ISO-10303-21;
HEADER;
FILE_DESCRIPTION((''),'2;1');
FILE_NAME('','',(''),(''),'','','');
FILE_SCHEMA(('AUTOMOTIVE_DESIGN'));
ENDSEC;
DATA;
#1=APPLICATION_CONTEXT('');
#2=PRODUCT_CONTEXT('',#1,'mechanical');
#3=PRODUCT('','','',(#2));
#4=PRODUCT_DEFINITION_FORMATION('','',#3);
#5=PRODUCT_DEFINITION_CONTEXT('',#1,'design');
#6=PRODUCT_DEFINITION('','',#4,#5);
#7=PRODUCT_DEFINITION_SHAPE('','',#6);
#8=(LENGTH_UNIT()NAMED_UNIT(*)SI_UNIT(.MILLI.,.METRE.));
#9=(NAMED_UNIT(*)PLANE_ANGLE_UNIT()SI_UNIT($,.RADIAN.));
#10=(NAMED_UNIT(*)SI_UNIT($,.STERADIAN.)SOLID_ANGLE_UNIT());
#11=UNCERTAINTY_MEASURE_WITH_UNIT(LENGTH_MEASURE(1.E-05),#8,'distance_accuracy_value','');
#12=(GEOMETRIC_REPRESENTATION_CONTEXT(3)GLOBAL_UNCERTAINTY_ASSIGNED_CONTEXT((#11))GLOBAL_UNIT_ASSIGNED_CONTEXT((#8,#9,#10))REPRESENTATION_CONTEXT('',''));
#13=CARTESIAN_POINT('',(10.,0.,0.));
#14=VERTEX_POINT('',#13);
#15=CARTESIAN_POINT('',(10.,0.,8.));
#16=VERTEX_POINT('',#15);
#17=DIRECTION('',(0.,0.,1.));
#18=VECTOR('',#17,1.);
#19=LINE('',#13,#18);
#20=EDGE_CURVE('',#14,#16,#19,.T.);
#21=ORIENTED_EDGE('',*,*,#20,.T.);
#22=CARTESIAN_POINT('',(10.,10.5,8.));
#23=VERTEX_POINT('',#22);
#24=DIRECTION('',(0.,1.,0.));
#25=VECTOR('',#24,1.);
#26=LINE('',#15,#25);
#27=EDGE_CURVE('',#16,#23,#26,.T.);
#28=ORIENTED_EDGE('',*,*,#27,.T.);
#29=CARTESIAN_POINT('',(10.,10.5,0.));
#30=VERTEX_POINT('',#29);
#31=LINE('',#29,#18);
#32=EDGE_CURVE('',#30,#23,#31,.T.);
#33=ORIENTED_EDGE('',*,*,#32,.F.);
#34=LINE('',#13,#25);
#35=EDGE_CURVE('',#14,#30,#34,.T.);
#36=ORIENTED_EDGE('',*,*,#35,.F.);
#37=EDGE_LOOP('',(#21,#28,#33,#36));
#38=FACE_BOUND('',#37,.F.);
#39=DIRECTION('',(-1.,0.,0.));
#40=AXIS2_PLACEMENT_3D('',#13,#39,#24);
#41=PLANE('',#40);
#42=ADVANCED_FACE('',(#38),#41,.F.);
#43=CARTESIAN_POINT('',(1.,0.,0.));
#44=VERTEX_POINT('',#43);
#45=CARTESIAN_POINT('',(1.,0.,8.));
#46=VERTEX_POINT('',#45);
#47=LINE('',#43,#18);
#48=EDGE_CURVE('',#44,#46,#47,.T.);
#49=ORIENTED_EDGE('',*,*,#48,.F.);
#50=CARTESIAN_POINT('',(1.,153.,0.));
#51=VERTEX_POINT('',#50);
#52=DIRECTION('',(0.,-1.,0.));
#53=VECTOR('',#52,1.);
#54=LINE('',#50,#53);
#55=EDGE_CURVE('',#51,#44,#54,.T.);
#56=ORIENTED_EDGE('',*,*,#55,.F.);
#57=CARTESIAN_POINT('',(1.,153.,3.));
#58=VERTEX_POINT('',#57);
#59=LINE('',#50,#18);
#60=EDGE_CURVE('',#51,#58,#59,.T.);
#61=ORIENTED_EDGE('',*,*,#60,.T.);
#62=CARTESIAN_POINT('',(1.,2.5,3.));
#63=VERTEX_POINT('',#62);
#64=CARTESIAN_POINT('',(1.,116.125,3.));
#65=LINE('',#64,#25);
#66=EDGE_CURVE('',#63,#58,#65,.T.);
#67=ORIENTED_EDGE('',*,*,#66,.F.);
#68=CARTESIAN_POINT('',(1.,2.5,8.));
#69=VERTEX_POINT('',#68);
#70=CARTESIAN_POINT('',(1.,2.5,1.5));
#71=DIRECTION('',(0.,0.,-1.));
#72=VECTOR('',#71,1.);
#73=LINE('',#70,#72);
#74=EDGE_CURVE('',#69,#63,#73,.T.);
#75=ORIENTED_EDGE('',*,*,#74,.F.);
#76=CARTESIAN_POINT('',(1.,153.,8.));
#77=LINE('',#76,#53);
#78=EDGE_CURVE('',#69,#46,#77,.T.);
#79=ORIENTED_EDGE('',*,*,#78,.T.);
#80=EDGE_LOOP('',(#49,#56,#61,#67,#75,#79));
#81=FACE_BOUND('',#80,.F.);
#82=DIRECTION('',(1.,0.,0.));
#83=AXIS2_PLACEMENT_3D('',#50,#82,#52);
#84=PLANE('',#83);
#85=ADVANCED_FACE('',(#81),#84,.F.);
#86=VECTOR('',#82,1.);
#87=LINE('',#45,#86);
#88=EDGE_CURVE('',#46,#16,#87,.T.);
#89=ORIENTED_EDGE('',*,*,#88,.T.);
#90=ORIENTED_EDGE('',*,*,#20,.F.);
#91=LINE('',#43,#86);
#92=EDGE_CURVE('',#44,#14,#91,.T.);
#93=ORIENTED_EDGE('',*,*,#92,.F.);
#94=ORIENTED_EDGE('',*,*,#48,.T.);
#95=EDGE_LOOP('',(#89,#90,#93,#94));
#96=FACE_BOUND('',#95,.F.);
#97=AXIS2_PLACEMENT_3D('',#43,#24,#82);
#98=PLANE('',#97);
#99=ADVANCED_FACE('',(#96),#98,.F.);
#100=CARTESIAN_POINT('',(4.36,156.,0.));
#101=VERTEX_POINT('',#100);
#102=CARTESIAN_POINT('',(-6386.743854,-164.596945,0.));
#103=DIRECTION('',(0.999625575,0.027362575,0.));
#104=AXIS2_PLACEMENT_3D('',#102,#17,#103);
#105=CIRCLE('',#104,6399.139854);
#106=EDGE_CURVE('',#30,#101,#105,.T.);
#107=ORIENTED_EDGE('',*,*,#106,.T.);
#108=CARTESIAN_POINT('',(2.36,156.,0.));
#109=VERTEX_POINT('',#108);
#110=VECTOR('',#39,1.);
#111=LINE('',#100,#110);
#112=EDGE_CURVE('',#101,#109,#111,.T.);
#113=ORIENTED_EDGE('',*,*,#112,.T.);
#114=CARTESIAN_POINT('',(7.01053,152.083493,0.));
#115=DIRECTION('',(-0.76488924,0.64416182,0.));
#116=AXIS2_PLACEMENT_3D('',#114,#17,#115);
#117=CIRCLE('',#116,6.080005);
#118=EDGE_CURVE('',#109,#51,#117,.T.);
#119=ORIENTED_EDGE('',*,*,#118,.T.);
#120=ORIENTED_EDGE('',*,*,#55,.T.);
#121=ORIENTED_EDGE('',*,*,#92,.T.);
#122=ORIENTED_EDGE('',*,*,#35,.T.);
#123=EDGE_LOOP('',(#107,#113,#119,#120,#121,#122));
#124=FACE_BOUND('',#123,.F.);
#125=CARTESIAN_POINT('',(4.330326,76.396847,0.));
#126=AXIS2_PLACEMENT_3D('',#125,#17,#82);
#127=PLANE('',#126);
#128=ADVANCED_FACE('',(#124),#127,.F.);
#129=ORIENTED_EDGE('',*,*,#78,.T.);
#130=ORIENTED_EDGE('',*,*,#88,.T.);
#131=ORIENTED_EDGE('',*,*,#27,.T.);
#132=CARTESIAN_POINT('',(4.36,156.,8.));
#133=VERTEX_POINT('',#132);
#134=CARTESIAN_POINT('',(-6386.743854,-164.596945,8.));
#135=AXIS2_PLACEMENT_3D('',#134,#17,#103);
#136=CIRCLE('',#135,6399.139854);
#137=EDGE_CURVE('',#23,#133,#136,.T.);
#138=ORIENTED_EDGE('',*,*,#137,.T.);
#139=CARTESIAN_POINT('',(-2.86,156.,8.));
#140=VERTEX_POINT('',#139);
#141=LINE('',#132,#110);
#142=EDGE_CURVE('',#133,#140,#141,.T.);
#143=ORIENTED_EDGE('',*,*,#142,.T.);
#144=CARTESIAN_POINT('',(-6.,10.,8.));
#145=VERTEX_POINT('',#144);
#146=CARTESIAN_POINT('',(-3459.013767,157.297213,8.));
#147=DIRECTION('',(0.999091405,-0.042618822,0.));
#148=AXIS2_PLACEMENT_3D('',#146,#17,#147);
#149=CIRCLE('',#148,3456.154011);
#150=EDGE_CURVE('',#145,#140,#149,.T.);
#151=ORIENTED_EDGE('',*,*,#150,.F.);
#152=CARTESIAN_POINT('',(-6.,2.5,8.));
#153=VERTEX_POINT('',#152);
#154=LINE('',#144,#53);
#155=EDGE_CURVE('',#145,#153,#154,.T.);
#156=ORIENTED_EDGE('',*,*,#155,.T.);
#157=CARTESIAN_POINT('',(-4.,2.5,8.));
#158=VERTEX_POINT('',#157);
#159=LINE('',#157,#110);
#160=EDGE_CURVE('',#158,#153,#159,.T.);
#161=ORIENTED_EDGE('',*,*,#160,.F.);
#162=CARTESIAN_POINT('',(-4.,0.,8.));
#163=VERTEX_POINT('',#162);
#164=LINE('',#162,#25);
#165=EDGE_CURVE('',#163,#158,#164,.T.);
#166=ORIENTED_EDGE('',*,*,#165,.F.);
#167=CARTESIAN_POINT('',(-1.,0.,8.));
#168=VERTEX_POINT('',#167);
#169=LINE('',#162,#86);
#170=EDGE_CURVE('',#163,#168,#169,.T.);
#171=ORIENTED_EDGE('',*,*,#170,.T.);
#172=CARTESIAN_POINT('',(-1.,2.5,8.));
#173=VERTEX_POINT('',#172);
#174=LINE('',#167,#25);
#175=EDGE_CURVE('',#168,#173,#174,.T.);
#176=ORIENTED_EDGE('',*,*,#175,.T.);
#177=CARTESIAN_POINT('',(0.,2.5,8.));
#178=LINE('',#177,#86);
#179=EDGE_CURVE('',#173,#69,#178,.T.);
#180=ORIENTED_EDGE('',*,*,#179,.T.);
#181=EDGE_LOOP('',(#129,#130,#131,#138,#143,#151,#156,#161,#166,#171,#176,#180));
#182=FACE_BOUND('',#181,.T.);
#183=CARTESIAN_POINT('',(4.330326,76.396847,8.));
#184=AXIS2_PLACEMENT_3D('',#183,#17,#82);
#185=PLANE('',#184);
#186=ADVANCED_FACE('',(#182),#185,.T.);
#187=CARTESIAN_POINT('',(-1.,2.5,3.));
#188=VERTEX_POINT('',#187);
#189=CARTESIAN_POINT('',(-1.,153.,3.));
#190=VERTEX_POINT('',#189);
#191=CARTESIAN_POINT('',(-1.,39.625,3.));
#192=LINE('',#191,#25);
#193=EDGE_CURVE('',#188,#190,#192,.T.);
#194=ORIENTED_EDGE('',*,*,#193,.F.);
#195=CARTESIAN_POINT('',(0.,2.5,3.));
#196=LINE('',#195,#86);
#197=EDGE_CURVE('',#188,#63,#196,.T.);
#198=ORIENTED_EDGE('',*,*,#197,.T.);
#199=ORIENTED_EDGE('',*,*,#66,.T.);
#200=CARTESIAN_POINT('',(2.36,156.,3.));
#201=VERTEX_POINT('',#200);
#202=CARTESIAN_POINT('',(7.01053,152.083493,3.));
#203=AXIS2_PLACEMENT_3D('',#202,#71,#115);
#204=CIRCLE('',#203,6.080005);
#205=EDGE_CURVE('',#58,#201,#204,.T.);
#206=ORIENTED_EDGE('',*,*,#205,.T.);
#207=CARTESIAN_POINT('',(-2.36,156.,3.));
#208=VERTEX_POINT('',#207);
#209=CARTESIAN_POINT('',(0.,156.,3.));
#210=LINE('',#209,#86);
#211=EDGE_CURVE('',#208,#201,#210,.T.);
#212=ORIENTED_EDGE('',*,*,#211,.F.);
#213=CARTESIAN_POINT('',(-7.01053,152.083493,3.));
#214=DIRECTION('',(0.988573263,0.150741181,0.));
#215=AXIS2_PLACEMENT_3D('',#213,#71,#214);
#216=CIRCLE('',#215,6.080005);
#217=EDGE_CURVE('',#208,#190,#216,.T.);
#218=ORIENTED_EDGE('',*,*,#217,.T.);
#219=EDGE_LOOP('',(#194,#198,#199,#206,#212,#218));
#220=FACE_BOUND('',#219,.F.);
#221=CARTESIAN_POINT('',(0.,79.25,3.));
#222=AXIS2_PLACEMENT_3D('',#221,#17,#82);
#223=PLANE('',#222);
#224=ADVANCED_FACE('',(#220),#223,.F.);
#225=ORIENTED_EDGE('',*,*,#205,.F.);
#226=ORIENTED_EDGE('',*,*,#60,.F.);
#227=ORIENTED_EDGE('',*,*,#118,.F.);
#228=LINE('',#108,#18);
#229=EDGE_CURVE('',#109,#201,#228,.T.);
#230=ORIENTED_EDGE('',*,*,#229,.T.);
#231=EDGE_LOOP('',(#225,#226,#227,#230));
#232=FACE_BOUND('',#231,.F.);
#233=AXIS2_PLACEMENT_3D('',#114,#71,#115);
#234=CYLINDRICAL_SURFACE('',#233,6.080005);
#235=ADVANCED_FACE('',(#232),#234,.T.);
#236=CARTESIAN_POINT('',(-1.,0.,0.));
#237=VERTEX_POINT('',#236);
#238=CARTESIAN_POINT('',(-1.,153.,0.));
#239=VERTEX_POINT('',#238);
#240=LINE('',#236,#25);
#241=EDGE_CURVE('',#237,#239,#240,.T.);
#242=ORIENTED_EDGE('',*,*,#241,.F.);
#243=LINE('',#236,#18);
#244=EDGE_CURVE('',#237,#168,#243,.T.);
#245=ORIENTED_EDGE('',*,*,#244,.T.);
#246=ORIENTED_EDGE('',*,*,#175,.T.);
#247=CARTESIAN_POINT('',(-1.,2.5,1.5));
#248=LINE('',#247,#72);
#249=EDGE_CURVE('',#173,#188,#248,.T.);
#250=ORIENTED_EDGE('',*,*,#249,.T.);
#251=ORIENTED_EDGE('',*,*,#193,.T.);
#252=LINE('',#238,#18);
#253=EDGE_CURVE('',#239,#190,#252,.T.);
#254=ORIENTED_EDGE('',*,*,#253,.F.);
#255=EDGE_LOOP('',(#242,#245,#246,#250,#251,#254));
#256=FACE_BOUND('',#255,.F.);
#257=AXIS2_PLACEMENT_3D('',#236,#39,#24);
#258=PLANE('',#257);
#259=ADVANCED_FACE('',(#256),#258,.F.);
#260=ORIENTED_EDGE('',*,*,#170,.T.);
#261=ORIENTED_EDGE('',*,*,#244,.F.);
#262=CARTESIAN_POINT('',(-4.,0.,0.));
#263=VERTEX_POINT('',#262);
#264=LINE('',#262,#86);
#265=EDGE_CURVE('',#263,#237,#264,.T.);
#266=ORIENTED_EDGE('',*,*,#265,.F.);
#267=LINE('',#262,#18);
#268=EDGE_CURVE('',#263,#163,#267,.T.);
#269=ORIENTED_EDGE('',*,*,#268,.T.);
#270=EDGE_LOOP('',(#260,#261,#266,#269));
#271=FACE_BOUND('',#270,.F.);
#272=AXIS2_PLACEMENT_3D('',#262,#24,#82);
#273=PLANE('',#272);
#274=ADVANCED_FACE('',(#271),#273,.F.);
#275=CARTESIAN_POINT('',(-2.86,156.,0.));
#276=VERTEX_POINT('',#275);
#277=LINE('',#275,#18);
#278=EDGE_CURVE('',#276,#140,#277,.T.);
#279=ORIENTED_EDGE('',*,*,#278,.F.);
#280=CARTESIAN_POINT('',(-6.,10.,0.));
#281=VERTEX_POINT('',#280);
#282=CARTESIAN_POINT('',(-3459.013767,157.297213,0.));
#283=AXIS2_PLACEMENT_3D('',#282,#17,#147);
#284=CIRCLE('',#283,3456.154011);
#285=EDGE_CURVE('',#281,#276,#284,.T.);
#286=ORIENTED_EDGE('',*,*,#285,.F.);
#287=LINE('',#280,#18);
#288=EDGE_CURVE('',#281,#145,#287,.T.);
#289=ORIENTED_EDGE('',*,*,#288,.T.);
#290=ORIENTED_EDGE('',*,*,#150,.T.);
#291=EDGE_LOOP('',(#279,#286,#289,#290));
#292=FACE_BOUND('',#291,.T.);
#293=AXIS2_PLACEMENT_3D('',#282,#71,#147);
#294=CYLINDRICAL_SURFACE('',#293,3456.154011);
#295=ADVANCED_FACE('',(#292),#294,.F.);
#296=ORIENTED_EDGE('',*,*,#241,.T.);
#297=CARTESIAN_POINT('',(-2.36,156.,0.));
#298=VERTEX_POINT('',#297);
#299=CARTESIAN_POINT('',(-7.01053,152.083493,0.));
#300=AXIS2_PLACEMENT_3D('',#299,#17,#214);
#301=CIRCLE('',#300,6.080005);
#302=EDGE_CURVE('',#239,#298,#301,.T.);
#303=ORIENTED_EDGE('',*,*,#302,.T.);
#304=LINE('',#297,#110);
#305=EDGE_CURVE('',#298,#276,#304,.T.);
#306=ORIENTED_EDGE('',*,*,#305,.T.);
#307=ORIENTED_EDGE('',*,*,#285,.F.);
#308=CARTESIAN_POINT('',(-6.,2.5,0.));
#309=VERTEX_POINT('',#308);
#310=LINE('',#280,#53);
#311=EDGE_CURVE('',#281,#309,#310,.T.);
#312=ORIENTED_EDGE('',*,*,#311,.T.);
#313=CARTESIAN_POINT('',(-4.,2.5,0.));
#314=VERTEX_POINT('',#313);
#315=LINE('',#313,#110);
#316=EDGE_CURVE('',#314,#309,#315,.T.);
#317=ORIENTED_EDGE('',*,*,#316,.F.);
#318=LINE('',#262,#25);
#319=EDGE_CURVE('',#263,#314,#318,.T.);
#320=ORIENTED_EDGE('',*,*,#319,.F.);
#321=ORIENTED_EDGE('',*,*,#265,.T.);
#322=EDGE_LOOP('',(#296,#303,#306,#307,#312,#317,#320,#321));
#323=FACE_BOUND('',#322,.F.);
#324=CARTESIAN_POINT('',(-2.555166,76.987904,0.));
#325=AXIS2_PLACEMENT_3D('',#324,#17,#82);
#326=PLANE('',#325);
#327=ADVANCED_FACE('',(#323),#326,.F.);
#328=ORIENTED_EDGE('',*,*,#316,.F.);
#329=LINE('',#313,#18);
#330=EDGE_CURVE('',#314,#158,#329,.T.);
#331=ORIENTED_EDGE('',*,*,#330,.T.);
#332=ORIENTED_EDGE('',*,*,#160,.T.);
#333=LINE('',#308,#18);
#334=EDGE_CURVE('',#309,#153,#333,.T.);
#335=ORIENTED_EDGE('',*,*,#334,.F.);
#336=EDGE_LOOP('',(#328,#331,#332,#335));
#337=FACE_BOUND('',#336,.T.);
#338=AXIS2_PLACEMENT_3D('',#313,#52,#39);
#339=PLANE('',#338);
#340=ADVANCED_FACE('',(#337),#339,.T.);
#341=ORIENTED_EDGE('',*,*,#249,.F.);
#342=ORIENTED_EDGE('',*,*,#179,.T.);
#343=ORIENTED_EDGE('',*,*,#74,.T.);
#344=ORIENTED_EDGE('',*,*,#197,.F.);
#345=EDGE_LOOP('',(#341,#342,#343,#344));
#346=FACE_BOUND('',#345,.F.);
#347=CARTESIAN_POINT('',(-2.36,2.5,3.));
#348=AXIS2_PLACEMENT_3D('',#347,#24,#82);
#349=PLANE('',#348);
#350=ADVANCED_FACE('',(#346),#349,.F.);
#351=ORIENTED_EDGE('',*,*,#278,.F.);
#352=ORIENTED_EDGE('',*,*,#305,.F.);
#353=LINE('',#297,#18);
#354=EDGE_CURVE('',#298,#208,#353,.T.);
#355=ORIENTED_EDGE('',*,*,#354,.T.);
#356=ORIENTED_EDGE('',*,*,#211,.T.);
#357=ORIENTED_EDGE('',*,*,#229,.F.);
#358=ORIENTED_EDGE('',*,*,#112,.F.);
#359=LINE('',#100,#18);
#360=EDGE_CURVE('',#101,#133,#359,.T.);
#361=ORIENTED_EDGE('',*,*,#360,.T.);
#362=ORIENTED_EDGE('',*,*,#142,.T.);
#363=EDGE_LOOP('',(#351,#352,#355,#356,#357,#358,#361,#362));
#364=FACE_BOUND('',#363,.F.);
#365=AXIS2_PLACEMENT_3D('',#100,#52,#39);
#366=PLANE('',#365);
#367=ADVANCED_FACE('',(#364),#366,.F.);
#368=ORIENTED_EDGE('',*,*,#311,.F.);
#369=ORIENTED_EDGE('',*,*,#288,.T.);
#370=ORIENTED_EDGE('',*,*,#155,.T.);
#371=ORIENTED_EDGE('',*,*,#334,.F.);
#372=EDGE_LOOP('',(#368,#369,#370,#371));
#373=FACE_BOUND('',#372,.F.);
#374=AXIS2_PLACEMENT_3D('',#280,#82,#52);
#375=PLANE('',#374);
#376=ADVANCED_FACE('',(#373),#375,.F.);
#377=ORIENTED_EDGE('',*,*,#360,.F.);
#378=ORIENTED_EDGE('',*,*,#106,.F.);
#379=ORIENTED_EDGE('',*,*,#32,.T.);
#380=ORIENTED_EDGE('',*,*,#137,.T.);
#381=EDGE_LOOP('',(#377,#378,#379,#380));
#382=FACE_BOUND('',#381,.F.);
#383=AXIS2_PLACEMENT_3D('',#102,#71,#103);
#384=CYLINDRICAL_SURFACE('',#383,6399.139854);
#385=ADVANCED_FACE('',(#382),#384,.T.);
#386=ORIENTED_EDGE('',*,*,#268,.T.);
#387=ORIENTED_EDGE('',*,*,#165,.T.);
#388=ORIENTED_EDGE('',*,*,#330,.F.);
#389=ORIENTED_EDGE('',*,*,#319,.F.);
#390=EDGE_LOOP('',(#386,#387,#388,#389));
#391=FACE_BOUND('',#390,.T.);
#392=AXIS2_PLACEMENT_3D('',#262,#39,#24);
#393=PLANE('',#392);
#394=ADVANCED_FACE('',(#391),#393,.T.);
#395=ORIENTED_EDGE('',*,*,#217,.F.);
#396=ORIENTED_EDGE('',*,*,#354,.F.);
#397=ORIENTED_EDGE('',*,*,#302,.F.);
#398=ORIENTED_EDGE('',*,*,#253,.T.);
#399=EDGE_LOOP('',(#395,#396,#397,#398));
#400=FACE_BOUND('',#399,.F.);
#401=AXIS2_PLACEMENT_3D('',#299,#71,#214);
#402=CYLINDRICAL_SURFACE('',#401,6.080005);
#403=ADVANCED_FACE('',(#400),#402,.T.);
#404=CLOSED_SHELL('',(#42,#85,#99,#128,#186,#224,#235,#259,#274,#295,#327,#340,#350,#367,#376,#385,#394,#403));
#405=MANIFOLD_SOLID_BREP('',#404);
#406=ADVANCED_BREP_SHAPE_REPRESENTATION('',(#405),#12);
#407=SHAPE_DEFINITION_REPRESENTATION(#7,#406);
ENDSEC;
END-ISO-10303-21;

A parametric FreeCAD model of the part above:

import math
import FreeCAD as App
import Part
import Sketcher
Q = App.Units.Quantity


def add_polygon(sketch, points):
    """Adds a closed chain of lines whose ends are joined by coincident constraints."""
    first, n = sketch.GeometryCount, len(points)
    for a, b in zip(points, points[1:] + points[:1]):
        sketch.addGeometry(Part.LineSegment(App.Vector(*a, 0), App.Vector(*b, 0)), False)
    for i in range(n):
        sketch.addConstraint(Sketcher.Constraint("Coincident", first + i, 2, first + (i + 1) % n, 1))

doc = App.newDocument("Part")
body = doc.addObject("PartDesign::Body", "Body")

sketch1 = body.newObject("Sketcher::SketchObject", "Sketch")
sketch1.AttachmentSupport = (doc.getObject("XY_Plane"), [""])
sketch1.MapMode = "FlatFace"
sketch1.addGeometry(Part.LineSegment(App.Vector(-1, 0, 0), App.Vector(-1, 153, 0)), False)
sketch1.addGeometry(Part.ArcOfCircle(Part.Circle(App.Vector(-7.01053, 152.083493, 0), App.Vector(0, 0, 1), 6.080005), math.radians(8.669882), math.radians(40.102861)), False)
sketch1.addGeometry(Part.LineSegment(App.Vector(-2.36, 156, 0), App.Vector(-2.86, 156, 0)), False)
sketch1.addGeometry(Part.ArcOfCircle(Part.Circle(App.Vector(-3459.013767, 157.297213, 0), App.Vector(0, 0, 1), 3456.154011), math.radians(-2.442618), math.radians(-0.021505)), False)
sketch1.addGeometry(Part.LineSegment(App.Vector(-6, 10, 0), App.Vector(-6, 2.5, 0)), False)
sketch1.addGeometry(Part.LineSegment(App.Vector(-6, 2.5, 0), App.Vector(-4, 2.5, 0)), False)
sketch1.addGeometry(Part.LineSegment(App.Vector(-4, 2.5, 0), App.Vector(-4, 0, 0)), False)
sketch1.addGeometry(Part.LineSegment(App.Vector(-4, 0, 0), App.Vector(-1, 0, 0)), False)
sketch1.addConstraint(Sketcher.Constraint("Coincident", 0, 2, 1, 1))
sketch1.addConstraint(Sketcher.Constraint("Coincident", 1, 2, 2, 1))
sketch1.addConstraint(Sketcher.Constraint("Coincident", 2, 2, 3, 2))
sketch1.addConstraint(Sketcher.Constraint("Coincident", 3, 1, 4, 1))
sketch1.addConstraint(Sketcher.Constraint("Coincident", 4, 2, 5, 1))
sketch1.addConstraint(Sketcher.Constraint("Coincident", 5, 2, 6, 1))
sketch1.addConstraint(Sketcher.Constraint("Coincident", 6, 2, 7, 1))
sketch1.addConstraint(Sketcher.Constraint("Coincident", 7, 2, 0, 1))
sketch1.addConstraint(Sketcher.Constraint("Vertical", 0))
sketch1.addConstraint(Sketcher.Constraint("Horizontal", 2))
sketch1.addConstraint(Sketcher.Constraint("Vertical", 4))
sketch1.addConstraint(Sketcher.Constraint("Horizontal", 5))
sketch1.addConstraint(Sketcher.Constraint("Vertical", 6))
sketch1.addConstraint(Sketcher.Constraint("Horizontal", 7))
sketch1.addConstraint(Sketcher.Constraint("PointOnObject", 6, 2, -1))
sketch1.addConstraint(Sketcher.Constraint("DistanceX", 5, 1, 5, 2, Q("2 mm")))
sketch1.addConstraint(Sketcher.Constraint("DistanceX", 7, 1, 7, 2, Q("3 mm")))
sketch1.addConstraint(Sketcher.Constraint("DistanceY", 0, 1, 0, 2, Q("153 mm")))
sketch1.addConstraint(Sketcher.Constraint("DistanceX", 2, 2, 2, 1, Q("0.5 mm")))
sketch1.addConstraint(Sketcher.Constraint("DistanceY", 4, 2, 4, 1, Q("7.5 mm")))
sketch1.addConstraint(Sketcher.Constraint("DistanceY", 6, 2, 6, 1, Q("2.5 mm")))
sketch1.addConstraint(Sketcher.Constraint("DistanceX", 0, 2, -1, 1, Q("1 mm")))
sketch1.addConstraint(Sketcher.Constraint("DistanceY", -1, 1, 1, 2, Q("156 mm")))
sketch1.addConstraint(Sketcher.Constraint("DistanceX", 1, 2, -1, 1, Q("2.36 mm")))
sketch1.addConstraint(Sketcher.Constraint("Radius", 3, Q("3456.154011 mm")))
sketch1.addConstraint(Sketcher.Constraint("Radius", 1, Q("6.080005 mm")))
pad1 = body.newObject("PartDesign::Pad", "Pad")
pad1.Profile = sketch1
pad1.Length = 8

sketch2 = body.newObject("Sketcher::SketchObject", "Sketch001")
sketch2.AttachmentSupport = (doc.getObject("XY_Plane"), [""])
sketch2.MapMode = "FlatFace"
sketch2.AttachmentOffset = App.Placement(App.Vector(0, 0, 3), App.Rotation())
add_polygon(sketch2, [(-2.36, 156), (-2.36, 2.5), (2.36, 2.5), (2.36, 156)])
sketch2.addConstraint(Sketcher.Constraint("Vertical", 0))
sketch2.addConstraint(Sketcher.Constraint("Horizontal", 1))
sketch2.addConstraint(Sketcher.Constraint("Vertical", 2))
sketch2.addConstraint(Sketcher.Constraint("Horizontal", 3))
sketch2.addConstraint(Sketcher.Constraint("DistanceY", 0, 2, 0, 1, Q("153.5 mm")))
sketch2.addConstraint(Sketcher.Constraint("DistanceY", -1, 1, 2, 2, Q("156 mm")))
sketch2.addConstraint(Sketcher.Constraint("DistanceX", 1, 1, 1, 2, Q("4.72 mm")))
sketch2.addConstraint(Sketcher.Constraint("DistanceX", 0, 2, -1, 1, Q("2.36 mm")))
pad2 = body.newObject("PartDesign::Pad", "Pad001")
pad2.Profile = sketch2
pad2.Length = 5

sketch3 = body.newObject("Sketcher::SketchObject", "Sketch002")
sketch3.AttachmentSupport = (doc.getObject("XY_Plane"), [""])
sketch3.MapMode = "FlatFace"
sketch3.addGeometry(Part.LineSegment(App.Vector(1, 0, 0), App.Vector(10, 0, 0)), False)
sketch3.addGeometry(Part.LineSegment(App.Vector(10, 0, 0), App.Vector(10, 10.5, 0)), False)
sketch3.addGeometry(Part.ArcOfCircle(Part.Circle(App.Vector(-6386.743854, -164.596945, 0), App.Vector(0, 0, 1), 6399.139854), math.radians(1.567956), math.radians(2.871721)), False)
sketch3.addGeometry(Part.LineSegment(App.Vector(4.36, 156, 0), App.Vector(2.36, 156, 0)), False)
sketch3.addGeometry(Part.ArcOfCircle(Part.Circle(App.Vector(7.01053, 152.083493, 0), App.Vector(0, 0, 1), 6.080005), math.radians(139.897139), math.radians(171.330118)), False)
sketch3.addGeometry(Part.LineSegment(App.Vector(1, 153, 0), App.Vector(1, 0, 0)), False)
sketch3.addConstraint(Sketcher.Constraint("Coincident", 0, 2, 1, 1))
sketch3.addConstraint(Sketcher.Constraint("Coincident", 1, 2, 2, 1))
sketch3.addConstraint(Sketcher.Constraint("Coincident", 2, 2, 3, 1))
sketch3.addConstraint(Sketcher.Constraint("Coincident", 3, 2, 4, 1))
sketch3.addConstraint(Sketcher.Constraint("Coincident", 4, 2, 5, 1))
sketch3.addConstraint(Sketcher.Constraint("Coincident", 5, 2, 0, 1))
sketch3.addConstraint(Sketcher.Constraint("Horizontal", 0))
sketch3.addConstraint(Sketcher.Constraint("Vertical", 1))
sketch3.addConstraint(Sketcher.Constraint("Horizontal", 3))
sketch3.addConstraint(Sketcher.Constraint("Vertical", 5))
sketch3.addConstraint(Sketcher.Constraint("PointOnObject", 0, 2, -1))
sketch3.addConstraint(Sketcher.Constraint("DistanceX", 0, 1, 0, 2, Q("9 mm")))
sketch3.addConstraint(Sketcher.Constraint("DistanceX", 3, 2, 3, 1, Q("2 mm")))
sketch3.addConstraint(Sketcher.Constraint("DistanceY", 5, 2, 5, 1, Q("153 mm")))
sketch3.addConstraint(Sketcher.Constraint("DistanceY", 1, 1, 1, 2, Q("10.5 mm")))
sketch3.addConstraint(Sketcher.Constraint("DistanceX", -1, 1, 0, 2, Q("10 mm")))
sketch3.addConstraint(Sketcher.Constraint("DistanceY", -1, 1, 3, 2, Q("156 mm")))
sketch3.addConstraint(Sketcher.Constraint("DistanceX", -1, 1, 3, 2, Q("2.36 mm")))
sketch3.addConstraint(Sketcher.Constraint("Radius", 2, Q("6399.139854 mm")))
sketch3.addConstraint(Sketcher.Constraint("Radius", 4, Q("6.080005 mm")))
pad3 = body.newObject("PartDesign::Pad", "Pad002")
pad3.Profile = sketch3
pad3.Length = 8

doc.recompute()
